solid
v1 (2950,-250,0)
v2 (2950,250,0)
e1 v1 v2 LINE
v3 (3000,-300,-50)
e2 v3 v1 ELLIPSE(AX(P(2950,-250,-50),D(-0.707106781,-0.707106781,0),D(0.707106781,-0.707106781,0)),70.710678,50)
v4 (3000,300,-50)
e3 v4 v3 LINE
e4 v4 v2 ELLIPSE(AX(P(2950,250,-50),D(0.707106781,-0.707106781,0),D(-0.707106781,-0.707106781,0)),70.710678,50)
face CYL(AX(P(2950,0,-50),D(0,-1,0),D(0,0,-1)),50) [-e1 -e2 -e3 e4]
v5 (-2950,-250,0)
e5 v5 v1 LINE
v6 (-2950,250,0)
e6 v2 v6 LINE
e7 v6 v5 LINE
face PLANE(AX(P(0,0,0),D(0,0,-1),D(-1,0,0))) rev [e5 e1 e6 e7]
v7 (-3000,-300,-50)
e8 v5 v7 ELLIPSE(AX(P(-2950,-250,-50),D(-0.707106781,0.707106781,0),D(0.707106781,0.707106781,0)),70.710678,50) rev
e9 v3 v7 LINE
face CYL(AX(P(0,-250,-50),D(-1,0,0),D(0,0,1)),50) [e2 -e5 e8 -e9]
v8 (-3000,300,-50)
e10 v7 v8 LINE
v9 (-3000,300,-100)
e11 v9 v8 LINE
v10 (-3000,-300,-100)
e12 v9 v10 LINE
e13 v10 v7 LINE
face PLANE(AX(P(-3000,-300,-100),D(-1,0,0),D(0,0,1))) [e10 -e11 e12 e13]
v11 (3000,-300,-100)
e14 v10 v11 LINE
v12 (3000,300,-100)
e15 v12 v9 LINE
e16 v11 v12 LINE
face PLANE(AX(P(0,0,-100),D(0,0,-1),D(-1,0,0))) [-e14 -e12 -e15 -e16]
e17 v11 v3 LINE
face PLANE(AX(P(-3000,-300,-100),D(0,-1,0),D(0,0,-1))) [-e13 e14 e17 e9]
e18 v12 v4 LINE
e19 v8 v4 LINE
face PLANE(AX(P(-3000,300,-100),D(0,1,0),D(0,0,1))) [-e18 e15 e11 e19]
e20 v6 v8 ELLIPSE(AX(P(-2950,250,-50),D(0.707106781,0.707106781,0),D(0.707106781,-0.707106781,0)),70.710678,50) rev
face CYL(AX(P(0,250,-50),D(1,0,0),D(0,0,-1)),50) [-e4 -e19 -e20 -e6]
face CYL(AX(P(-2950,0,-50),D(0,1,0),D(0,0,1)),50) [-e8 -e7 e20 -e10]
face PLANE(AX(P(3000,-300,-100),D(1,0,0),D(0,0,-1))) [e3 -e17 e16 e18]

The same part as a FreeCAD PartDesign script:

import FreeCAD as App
import Part
import Sketcher

V = App.Vector
Q = App.Units.Quantity


def edges_at(feature, points):
    """Names of the edges that pass closest to the given points."""
    edges = feature.Shape.Edges
    near = lambda p: min(range(len(edges)), key=lambda i: edges[i].distToShape(Part.Vertex(*p))[0])
    return sorted({f"Edge{near(p) + 1}" for p in points})

doc = App.newDocument("Part")
body = doc.addObject("PartDesign::Body", "Body")

# Sketch on XY plane
sketch1 = body.newObject("Sketcher::SketchObject", "Sketch")
sketch1.AttachmentSupport = (doc.getObject("XY_Plane"), [""])
sketch1.MapMode = "FlatFace"
sketch1.addGeometry([
    Part.LineSegment(V(-3000, 300, 0), V(-3000, -300, 0)),
    Part.LineSegment(V(-3000, -300, 0), V(3000, -300, 0)),
    Part.LineSegment(V(3000, -300, 0), V(3000, 300, 0)),
    Part.LineSegment(V(3000, 300, 0), V(-3000, 300, 0)),
], False)
sketch1.addConstraint([
    Sketcher.Constraint("Coincident", 0, 2, 1, 1),
    Sketcher.Constraint("Coincident", 1, 2, 2, 1),
    Sketcher.Constraint("Coincident", 2, 2, 3, 1),
    Sketcher.Constraint("Coincident", 3, 2, 0, 1),
    Sketcher.Constraint("Vertical", 0),
    Sketcher.Constraint("Horizontal", 1),
    Sketcher.Constraint("Vertical", 2),
    Sketcher.Constraint("Horizontal", 3),
    Sketcher.Constraint("Symmetric", 0, 2, 2, 2, -1, 1),
    Sketcher.Constraint("DistanceX", 1, 1, 1, 2, Q("6000 mm")),
    Sketcher.Constraint("DistanceY", 0, 2, 0, 1, Q("600 mm")),
])
pad1 = body.newObject("PartDesign::Pad", "Pad")
pad1.Profile = sketch1
pad1.Length = 100
pad1.Reversed = True
doc.recompute()

fillet = body.newObject("PartDesign::Fillet", "Fillet")
fillet.Base = (pad1, edges_at(pad1, [
    (0, -300, 0),
    (-3000, 0, 0),
    (0, 300, 0),
    (3000, 0, 0),
]))
fillet.Radius = 50

doc.recompute()
